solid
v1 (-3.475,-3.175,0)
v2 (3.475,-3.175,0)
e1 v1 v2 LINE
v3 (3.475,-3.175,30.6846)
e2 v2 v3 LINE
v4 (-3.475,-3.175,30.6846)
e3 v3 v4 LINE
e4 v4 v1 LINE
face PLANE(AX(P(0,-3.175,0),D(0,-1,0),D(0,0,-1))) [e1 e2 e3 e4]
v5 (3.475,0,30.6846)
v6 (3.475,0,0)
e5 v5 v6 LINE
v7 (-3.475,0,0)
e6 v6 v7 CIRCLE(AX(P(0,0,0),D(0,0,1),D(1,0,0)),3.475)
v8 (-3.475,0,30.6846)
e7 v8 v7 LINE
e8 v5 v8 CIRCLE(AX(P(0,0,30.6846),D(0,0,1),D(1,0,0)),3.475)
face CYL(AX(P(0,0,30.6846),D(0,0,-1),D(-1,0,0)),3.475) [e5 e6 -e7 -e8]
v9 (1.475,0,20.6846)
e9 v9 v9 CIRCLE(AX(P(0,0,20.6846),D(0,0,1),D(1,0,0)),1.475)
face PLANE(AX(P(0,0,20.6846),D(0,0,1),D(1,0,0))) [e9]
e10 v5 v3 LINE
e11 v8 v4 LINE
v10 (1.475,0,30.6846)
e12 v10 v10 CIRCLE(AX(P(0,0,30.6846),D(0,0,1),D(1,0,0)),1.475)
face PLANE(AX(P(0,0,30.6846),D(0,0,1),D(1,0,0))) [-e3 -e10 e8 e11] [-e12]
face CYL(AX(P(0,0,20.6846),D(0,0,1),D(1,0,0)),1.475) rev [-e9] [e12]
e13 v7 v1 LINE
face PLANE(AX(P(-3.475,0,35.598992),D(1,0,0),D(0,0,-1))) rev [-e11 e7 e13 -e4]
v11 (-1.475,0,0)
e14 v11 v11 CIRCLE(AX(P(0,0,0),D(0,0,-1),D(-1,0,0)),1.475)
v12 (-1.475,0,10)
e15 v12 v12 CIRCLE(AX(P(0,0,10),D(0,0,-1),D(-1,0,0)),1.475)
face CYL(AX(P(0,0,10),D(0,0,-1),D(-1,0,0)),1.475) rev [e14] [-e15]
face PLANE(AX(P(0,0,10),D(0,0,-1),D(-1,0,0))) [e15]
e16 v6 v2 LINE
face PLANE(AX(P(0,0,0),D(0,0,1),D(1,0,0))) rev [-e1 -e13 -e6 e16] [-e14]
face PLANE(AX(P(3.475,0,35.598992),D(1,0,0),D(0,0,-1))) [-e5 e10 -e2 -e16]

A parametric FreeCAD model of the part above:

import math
import FreeCAD as App
import Part
import Sketcher


def add_polygon(sketch, points):
    """Adds a closed chain of lines whose ends are joined by coincident constraints."""
    first, n = sketch.GeometryCount, len(points)
    for a, b in zip(points, points[1:] + points[:1]):
        sketch.addGeometry(Part.LineSegment(App.Vector(*a, 0), App.Vector(*b, 0)), False)
    for i in range(n):
        sketch.addConstraint(Sketcher.Constraint("Coincident", first + i, 2, first + (i + 1) % n, 1))

doc = App.newDocument("Part")
body = doc.addObject("PartDesign::Body", "Body")

# Sketch on XY plane
sketch1 = body.newObject("Sketcher::SketchObject", "Sketch")
sketch1.AttachmentSupport = (doc.getObject("XY_Plane"), [""])
sketch1.MapMode = "FlatFace"
sketch1.addGeometry(Part.Circle(App.Vector(0, 0, 0), App.Vector(0, 0, 1), 3.5), False)
sketch1.addConstraint(Sketcher.Constraint("Coincident", 0, 3, -1, 1))
sketch1.addConstraint(Sketcher.Constraint("Diameter", 0, 6.95))
pad1 = body.newObject("PartDesign::Pad", "Pad")
pad1.Profile = sketch1
pad1.Length = 30.6846

# Sketch on XY plane
sketch2 = body.newObject("Sketcher::SketchObject", "Sketch001")
sketch2.AttachmentSupport = (doc.getObject("XY_Plane"), [""])
sketch2.MapMode = "FlatFace"
sketch2.AttachmentOffset = App.Placement(App.Vector(0, 0, 30.6846), App.Rotation())
sketch2.addGeometry(Part.Circle(App.Vector(0, 0, 0), App.Vector(0, 0, 1), 1.5), False)
sketch2.addConstraint(Sketcher.Constraint("Coincident", 0, 3, -1, 1))
sketch2.addConstraint(Sketcher.Constraint("Diameter", 0, 2.95))
pocket1 = body.newObject("PartDesign::Pocket", "Pocket")
pocket1.Profile = sketch2
pocket1.Length = 10

# Sketch on XY plane
sketch3 = body.newObject("Sketcher::SketchObject", "Sketch002")
sketch3.AttachmentSupport = (doc.getObject("XY_Plane"), [""])
sketch3.MapMode = "FlatFace"
sketch3.AttachmentOffset = App.Placement(App.Vector(0, 0, 10), App.Rotation())
sketch3.addGeometry(Part.Circle(App.Vector(0, 0, 0), App.Vector(0, 0, 1), 1.5), False)
sketch3.addConstraint(Sketcher.Constraint("Coincident", 0, 3, -1, 1))
sketch3.addConstraint(Sketcher.Constraint("Diameter", 0, 2.95))
pocket2 = body.newObject("PartDesign::Pocket", "Pocket001")
pocket2.Profile = sketch3
pocket2.Length = 10

# Sketch on XY plane
sketch4 = body.newObject("Sketcher::SketchObject", "Sketch003")
sketch4.AttachmentSupport = (doc.getObject("XY_Plane"), [""])
sketch4.MapMode = "FlatFace"
sketch4.addGeometry(Part.ArcOfCircle(Part.Circle(App.Vector(0, 0, 0), App.Vector(0, 0, 1), 3.5), math.radians(-90), math.radians(0)), False)
sketch4.addGeometry(Part.LineSegment(App.Vector(3.5, 0, 0), App.Vector(3.5, -3.5, 0)), False)
sketch4.addGeometry(Part.LineSegment(App.Vector(3.5, -3.5, 0), App.Vector(0, -3.5, 0)), False)
sketch4.addGeometry(Part.LineSegment(App.Vector(-3.5, -3.5, 0), App.Vector(-3.5, 0, 0)), False)
sketch4.addGeometry(Part.ArcOfCircle(Part.Circle(App.Vector(0, 0, 0), App.Vector(0, 0, 1), 3.5), math.radians(180), math.radians(270)), False)
sketch4.addGeometry(Part.LineSegment(App.Vector(0, -3.5, 0), App.Vector(-3.5, -3.5, 0)), False)
sketch4.addConstraint(Sketcher.Constraint("Tangent", 0, 2, 1, 1))
sketch4.addConstraint(Sketcher.Constraint("Coincident", 1, 2, 2, 1))
sketch4.addConstraint(Sketcher.Constraint("Tangent", 2, 2, 0, 1))
sketch4.addConstraint(Sketcher.Constraint("Tangent", 3, 2, 4, 1))
sketch4.addConstraint(Sketcher.Constraint("Tangent", 4, 2, 5, 1))
sketch4.addConstraint(Sketcher.Constraint("Coincident", 5, 2, 3, 1))
sketch4.addConstraint(Sketcher.Constraint("Vertical", 1))
sketch4.addConstraint(Sketcher.Constraint("Horizontal", 2))
sketch4.addConstraint(Sketcher.Constraint("Vertical", 3))
sketch4.addConstraint(Sketcher.Constraint("Horizontal", 5))
sketch4.addConstraint(Sketcher.Constraint("Coincident", 0, 3, -1, 1))
sketch4.addConstraint(Sketcher.Constraint("Coincident", 4, 3, -1, 1))
sketch4.addConstraint(Sketcher.Constraint("Equal", 0, 4))
sketch4.addConstraint(Sketcher.Constraint("Radius", 0, 3.475))
pad2 = body.newObject("PartDesign::Pad", "Pad001")
pad2.Profile = sketch4
pad2.Length = 30.6846

# Sketch on XZ plane
sketch5 = body.newObject("Sketcher::SketchObject", "Sketch004")
sketch5.AttachmentSupport = (doc.getObject("XZ_Plane"), [""])
sketch5.MapMode = "FlatFace"
sketch5.AttachmentOffset = App.Placement(App.Vector(0, 0, 3.475), App.Rotation())
add_polygon(sketch5, [(3, 0), (3, 31), (-3, 31), (-3, 0)])  # lines 0-3
sketch5.addConstraint(Sketcher.Constraint("Vertical", 0))
sketch5.addConstraint(Sketcher.Constraint("Horizontal", 1))
sketch5.addConstraint(Sketcher.Constraint("Vertical", 2))
sketch5.addConstraint(Sketcher.Constraint("Horizontal", 3))
sketch5.addConstraint(Sketcher.Constraint("Symmetric", 2, 2, 3, 2, -1, 1))
sketch5.addConstraint(Sketcher.Constraint("DistanceX", 1, 2, 1, 1, 6.95))
sketch5.addConstraint(Sketcher.Constraint("DistanceY", 0, 1, 0, 2, 30.6846))
pocket3 = body.newObject("PartDesign::Pocket", "Pocket002")
pocket3.Profile = sketch5
pocket3.Length = 0.3

doc.recompute()
